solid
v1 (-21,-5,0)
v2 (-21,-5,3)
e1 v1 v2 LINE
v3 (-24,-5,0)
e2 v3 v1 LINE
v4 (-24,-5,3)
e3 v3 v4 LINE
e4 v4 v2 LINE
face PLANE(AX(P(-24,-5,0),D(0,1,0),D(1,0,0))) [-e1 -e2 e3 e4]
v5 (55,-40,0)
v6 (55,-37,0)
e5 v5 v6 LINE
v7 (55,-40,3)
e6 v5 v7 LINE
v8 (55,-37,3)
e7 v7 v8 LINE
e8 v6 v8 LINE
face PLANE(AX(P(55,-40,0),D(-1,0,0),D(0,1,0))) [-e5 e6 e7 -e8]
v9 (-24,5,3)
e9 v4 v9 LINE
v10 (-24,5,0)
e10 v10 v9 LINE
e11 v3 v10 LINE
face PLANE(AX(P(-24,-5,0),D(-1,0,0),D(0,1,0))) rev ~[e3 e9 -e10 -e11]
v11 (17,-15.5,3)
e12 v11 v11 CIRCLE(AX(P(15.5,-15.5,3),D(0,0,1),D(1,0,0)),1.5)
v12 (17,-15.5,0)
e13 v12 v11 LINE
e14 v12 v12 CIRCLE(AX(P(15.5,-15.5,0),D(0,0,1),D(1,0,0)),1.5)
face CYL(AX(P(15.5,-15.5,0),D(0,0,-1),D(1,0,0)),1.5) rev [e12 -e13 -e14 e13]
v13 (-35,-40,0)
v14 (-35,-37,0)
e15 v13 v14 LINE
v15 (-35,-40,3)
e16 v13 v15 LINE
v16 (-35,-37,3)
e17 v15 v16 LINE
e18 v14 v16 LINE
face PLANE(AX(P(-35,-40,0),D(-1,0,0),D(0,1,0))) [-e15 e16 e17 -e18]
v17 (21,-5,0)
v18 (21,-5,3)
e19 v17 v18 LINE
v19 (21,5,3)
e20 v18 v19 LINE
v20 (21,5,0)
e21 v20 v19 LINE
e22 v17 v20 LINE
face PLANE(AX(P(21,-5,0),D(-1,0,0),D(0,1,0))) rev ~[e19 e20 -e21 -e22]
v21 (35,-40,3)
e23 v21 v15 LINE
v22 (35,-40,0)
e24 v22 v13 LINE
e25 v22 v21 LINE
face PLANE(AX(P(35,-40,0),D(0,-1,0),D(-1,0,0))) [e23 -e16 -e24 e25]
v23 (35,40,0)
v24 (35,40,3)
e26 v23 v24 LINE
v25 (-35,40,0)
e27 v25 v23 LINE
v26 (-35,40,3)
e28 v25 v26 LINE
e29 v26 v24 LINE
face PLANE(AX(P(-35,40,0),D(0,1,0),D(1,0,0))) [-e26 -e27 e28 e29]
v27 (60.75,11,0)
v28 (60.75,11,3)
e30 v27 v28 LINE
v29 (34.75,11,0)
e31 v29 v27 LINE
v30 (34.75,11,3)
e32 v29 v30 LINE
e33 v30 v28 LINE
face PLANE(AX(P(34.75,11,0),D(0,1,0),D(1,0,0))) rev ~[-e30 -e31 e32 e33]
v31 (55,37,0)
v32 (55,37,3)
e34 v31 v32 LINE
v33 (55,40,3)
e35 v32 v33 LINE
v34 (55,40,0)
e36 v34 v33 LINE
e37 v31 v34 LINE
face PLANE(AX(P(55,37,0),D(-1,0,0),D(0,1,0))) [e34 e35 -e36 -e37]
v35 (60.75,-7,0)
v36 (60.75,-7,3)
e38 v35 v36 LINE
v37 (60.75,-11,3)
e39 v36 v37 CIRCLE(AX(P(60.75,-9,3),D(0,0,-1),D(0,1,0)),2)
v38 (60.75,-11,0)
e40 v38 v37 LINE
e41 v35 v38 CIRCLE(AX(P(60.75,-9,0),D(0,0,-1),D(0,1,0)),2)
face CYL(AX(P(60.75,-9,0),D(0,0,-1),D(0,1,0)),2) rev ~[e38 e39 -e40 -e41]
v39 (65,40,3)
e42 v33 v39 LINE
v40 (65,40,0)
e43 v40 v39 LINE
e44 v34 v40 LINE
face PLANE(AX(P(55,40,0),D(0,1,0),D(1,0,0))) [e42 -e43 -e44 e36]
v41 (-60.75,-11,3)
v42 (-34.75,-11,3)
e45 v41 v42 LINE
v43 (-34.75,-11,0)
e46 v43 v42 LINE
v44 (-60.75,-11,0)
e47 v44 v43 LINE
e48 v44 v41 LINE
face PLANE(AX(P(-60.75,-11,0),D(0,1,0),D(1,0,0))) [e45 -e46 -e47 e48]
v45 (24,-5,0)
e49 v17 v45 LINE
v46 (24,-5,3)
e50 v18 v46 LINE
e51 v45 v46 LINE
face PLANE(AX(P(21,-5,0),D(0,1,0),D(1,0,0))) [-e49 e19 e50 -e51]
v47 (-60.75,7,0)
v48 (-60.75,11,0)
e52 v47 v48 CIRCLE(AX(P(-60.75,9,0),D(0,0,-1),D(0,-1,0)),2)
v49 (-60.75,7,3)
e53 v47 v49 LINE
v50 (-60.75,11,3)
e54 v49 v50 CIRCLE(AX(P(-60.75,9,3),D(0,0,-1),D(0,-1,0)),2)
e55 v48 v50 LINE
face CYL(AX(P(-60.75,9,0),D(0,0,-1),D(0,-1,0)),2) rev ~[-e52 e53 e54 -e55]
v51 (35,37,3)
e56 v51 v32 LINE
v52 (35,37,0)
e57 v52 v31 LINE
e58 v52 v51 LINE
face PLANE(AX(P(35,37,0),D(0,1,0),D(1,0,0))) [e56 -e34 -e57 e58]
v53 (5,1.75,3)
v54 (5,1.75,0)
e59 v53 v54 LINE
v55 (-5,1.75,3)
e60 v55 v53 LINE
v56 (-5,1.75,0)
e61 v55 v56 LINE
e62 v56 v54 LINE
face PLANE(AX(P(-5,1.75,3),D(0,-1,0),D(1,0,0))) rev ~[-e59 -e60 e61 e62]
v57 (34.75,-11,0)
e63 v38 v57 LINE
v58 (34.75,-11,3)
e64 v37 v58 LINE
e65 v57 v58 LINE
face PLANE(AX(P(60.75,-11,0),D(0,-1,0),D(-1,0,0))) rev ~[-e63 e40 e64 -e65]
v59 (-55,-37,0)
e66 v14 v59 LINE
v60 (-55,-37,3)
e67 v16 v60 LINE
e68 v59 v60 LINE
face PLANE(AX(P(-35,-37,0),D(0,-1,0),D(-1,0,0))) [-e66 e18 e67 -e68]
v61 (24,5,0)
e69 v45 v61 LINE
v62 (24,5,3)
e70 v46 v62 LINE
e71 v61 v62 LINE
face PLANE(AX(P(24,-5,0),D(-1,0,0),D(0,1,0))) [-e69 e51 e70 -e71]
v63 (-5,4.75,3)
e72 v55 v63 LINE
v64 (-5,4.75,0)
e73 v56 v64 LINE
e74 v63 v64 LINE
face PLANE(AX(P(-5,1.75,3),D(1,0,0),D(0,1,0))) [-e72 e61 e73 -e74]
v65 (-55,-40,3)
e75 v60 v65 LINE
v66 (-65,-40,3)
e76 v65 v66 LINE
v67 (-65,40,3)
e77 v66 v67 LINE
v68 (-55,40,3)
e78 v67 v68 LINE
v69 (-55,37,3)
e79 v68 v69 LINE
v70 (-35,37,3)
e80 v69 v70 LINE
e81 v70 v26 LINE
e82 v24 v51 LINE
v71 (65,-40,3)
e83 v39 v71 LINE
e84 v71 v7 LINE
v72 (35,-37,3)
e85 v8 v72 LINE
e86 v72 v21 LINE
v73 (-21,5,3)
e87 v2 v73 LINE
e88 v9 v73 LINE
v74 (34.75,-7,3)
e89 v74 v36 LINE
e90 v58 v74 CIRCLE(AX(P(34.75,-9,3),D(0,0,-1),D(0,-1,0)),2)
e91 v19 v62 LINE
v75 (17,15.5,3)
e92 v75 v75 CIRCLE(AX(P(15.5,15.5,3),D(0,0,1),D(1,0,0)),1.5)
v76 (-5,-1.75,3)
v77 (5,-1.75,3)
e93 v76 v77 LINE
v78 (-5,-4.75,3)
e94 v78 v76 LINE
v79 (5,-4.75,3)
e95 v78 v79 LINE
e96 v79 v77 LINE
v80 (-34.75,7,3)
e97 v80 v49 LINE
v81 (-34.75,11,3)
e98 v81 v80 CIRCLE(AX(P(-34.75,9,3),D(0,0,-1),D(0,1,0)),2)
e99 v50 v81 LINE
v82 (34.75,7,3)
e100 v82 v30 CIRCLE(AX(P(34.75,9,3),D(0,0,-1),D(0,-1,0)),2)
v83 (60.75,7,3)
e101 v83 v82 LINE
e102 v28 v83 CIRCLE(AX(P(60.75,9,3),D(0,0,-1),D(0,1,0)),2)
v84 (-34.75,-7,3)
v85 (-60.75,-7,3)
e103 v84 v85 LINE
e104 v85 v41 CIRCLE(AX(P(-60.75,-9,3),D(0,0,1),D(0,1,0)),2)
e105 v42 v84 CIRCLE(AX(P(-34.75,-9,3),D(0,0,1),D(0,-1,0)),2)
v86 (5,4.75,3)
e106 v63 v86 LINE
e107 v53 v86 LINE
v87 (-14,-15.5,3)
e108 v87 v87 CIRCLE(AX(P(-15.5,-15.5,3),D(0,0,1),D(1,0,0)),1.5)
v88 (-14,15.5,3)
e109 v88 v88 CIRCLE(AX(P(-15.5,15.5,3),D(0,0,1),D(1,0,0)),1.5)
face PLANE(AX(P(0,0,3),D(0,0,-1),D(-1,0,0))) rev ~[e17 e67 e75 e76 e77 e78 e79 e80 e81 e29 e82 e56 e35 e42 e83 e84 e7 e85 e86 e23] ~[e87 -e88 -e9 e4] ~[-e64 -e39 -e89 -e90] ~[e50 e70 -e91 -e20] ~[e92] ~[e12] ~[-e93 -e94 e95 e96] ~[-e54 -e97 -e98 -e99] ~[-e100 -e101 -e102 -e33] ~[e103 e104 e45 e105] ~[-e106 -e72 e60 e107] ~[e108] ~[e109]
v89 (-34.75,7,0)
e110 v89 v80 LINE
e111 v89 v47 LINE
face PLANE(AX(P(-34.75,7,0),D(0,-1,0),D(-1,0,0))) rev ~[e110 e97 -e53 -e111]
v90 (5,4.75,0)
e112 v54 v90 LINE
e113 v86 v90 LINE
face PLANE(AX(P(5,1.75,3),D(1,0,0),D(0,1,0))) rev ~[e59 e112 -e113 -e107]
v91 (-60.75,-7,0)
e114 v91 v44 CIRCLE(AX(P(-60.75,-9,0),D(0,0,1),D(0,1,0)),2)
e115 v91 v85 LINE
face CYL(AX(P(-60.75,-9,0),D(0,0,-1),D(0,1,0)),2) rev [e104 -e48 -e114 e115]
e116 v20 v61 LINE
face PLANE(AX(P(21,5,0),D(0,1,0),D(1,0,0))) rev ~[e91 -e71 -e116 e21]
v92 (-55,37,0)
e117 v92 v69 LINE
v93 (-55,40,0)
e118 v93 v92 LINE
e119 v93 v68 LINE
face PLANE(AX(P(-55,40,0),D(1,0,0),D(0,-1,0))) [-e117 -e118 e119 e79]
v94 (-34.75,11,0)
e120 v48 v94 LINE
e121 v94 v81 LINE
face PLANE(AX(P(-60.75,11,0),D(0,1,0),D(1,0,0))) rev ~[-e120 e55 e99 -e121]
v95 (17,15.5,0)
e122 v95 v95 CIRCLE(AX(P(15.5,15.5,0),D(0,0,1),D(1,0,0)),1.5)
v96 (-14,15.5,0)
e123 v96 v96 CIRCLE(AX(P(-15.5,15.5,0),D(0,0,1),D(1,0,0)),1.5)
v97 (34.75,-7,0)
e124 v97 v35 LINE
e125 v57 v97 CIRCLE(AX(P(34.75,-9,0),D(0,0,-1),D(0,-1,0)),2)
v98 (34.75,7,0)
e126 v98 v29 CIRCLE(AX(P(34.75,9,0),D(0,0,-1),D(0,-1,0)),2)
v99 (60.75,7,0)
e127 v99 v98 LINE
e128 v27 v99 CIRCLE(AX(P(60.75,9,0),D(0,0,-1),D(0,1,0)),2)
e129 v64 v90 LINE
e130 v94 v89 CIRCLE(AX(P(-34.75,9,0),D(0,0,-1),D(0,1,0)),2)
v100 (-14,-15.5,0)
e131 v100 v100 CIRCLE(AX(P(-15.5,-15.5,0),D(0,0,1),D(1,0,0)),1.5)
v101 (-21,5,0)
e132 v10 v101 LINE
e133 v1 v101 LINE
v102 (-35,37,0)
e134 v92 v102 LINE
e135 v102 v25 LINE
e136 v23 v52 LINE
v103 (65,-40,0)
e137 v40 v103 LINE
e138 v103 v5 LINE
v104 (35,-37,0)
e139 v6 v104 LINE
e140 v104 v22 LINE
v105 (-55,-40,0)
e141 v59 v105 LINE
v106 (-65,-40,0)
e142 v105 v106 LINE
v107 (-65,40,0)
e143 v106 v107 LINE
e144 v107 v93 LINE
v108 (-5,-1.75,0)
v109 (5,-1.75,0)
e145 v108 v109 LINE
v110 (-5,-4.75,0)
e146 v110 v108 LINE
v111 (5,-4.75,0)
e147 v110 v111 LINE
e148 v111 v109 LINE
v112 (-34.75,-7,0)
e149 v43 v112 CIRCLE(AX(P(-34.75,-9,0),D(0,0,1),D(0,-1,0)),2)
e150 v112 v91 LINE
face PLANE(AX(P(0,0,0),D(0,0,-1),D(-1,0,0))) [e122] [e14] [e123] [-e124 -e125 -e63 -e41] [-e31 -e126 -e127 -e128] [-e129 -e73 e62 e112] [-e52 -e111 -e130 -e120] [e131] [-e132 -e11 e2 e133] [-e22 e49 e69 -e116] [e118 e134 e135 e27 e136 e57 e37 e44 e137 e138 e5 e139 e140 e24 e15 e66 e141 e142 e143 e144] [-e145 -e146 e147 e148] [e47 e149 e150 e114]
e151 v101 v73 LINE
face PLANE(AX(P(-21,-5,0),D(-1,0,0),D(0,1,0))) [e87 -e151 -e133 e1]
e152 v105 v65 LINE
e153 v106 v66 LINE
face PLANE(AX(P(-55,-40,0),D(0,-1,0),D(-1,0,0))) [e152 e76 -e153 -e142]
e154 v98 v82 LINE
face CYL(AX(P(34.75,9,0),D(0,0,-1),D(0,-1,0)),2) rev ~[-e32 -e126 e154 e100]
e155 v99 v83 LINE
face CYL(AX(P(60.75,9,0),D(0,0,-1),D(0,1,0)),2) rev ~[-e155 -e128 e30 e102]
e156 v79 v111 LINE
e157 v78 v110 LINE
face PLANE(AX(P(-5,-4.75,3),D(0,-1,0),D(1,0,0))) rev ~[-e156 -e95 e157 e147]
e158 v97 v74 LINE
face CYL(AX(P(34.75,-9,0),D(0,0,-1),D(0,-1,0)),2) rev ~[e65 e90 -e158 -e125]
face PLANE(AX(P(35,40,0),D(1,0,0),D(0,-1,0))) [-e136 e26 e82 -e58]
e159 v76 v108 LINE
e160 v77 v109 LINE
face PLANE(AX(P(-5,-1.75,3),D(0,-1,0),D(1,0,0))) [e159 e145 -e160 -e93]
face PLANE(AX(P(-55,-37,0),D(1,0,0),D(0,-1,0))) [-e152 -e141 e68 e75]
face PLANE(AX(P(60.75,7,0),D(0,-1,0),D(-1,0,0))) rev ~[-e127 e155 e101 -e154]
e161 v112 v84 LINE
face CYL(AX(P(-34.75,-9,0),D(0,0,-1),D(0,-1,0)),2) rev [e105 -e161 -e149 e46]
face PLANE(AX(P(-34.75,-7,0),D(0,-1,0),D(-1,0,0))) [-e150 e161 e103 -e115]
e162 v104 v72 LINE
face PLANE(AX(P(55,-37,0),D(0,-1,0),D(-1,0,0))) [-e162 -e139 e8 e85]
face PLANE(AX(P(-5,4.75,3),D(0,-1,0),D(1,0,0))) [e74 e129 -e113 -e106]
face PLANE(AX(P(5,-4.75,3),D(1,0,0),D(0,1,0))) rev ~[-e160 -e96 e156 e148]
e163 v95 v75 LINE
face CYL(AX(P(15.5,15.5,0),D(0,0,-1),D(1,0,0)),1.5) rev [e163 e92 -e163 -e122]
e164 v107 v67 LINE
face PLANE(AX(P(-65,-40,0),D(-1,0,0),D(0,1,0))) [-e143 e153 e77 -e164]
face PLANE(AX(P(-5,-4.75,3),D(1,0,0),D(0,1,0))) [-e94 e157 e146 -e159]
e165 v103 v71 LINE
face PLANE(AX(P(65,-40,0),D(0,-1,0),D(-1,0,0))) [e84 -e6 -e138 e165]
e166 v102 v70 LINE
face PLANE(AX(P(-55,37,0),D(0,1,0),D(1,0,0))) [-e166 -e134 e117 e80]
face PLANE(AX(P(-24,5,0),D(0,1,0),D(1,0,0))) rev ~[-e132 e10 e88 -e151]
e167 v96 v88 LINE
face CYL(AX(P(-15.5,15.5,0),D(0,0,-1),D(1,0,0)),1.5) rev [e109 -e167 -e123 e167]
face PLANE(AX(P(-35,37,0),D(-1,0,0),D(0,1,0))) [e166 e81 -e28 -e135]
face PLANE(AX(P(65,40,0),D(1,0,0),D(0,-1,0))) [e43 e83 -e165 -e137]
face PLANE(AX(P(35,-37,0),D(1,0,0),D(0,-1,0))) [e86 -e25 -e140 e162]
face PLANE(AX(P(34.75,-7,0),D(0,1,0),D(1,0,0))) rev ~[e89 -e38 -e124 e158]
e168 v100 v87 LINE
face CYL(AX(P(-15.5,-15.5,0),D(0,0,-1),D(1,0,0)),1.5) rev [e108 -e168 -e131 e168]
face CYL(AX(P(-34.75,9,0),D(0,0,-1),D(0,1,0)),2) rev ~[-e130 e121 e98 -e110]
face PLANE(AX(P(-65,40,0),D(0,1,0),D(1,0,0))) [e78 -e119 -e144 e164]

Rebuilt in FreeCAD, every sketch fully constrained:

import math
import FreeCAD as App
import Part
import Sketcher
from FreeCAD import Vector


def add_polygon(sketch, points):
    """Adds a closed chain of lines whose ends are joined by coincident constraints."""
    first, n = sketch.GeometryCount, len(points)
    for a, b in zip(points, points[1:] + points[:1]):
        sketch.addGeometry(Part.LineSegment(App.Vector(*a, 0), App.Vector(*b, 0)), False)
    for i in range(n):
        sketch.addConstraint(Sketcher.Constraint("Coincident", first + i, 2, first + (i + 1) % n, 1))

doc = App.newDocument("Part")
body = doc.addObject("PartDesign::Body", "Body")

# Sketch on XY plane
sketch1 = body.newObject("Sketcher::SketchObject", "Sketch")
sketch1.AttachmentSupport = (doc.getObject("XY_Plane"), [""])
sketch1.MapMode = "FlatFace"
add_polygon(sketch1, [(-55, 37), (-55, 40), (-65, 40), (-65, -40), (-55, -40), (-55, -37), (-35, -37), (-35, -40), (35, -40), (35, -37), (55, -37), (55, -40), (65, -40), (65, 40), (55, 40), (55, 37), (35, 37), (35, 40), (-35, 40), (-35, 37)])  # lines 0-19
sketch1.addGeometry(Part.LineSegment(Vector(34.8, -7, 0), Vector(60.8, -7, 0)), False)  # 20
sketch1.addGeometry(Part.ArcOfCircle(Part.Circle(Vector(60.8, -9, 0), Vector(0, 0, 1), 2), math.radians(-90), math.radians(90)), False)  # 21
sketch1.addGeometry(Part.LineSegment(Vector(60.8, -11, 0), Vector(34.8, -11, 0)), False)  # 22
sketch1.addGeometry(Part.ArcOfCircle(Part.Circle(Vector(34.8, -9, 0), Vector(0, 0, 1), 2), math.radians(90), math.radians(270)), False)  # 23
sketch1.addGeometry(Part.Circle(Vector(15.5, -15.5, 0), Vector(0, 0, 1), 1.5), False)  # 24
sketch1.addGeometry(Part.Circle(Vector(-15.5, -15.5, 0), Vector(0, 0, 1), 1.5), False)  # 25
sketch1.addGeometry(Part.ArcOfCircle(Part.Circle(Vector(-34.8, -9, 0), Vector(0, 0, 1), 2), math.radians(-90), math.radians(90)), False)  # 26
sketch1.addGeometry(Part.LineSegment(Vector(-34.8, -11, 0), Vector(-60.8, -11, 0)), False)  # 27
sketch1.addGeometry(Part.ArcOfCircle(Part.Circle(Vector(-60.8, -9, 0), Vector(0, 0, 1), 2), math.radians(90), math.radians(270)), False)  # 28
sketch1.addGeometry(Part.LineSegment(Vector(-60.8, -7, 0), Vector(-34.8, -7, 0)), False)  # 29
add_polygon(sketch1, [(21, -5), (21, 5), (24, 5), (24, -5)])  # lines 30-33
sketch1.addGeometry(Part.LineSegment(Vector(34.8, 11, 0), Vector(60.8, 11, 0)), False)  # 34
sketch1.addGeometry(Part.ArcOfCircle(Part.Circle(Vector(60.8, 9, 0), Vector(0, 0, 1), 2), math.radians(-90), math.radians(90)), False)  # 35
sketch1.addGeometry(Part.LineSegment(Vector(60.8, 7, 0), Vector(34.8, 7, 0)), False)  # 36
sketch1.addGeometry(Part.ArcOfCircle(Part.Circle(Vector(34.8, 9, 0), Vector(0, 0, 1), 2), math.radians(90), math.radians(270)), False)  # 37
sketch1.addGeometry(Part.Circle(Vector(15.5, 15.5, 0), Vector(0, 0, 1), 1.5), False)  # 38
add_polygon(sketch1, [(-24, -5), (-24, 5), (-21, 5), (-21, -5)])  # lines 39-42
sketch1.addGeometry(Part.Circle(Vector(-15.5, 15.5, 0), Vector(0, 0, 1), 1.5), False)  # 43
sketch1.addGeometry(Part.LineSegment(Vector(-60.8, 11, 0), Vector(-34.8, 11, 0)), False)  # 44
sketch1.addGeometry(Part.ArcOfCircle(Part.Circle(Vector(-34.8, 9, 0), Vector(0, 0, 1), 2), math.radians(-90), math.radians(90)), False)  # 45
sketch1.addGeometry(Part.LineSegment(Vector(-34.8, 7, 0), Vector(-60.8, 7, 0)), False)  # 46
sketch1.addGeometry(Part.ArcOfCircle(Part.Circle(Vector(-60.8, 9, 0), Vector(0, 0, 1), 2), math.radians(90), math.radians(270)), False)  # 47
sketch1.addConstraint([
    Sketcher.Constraint("Tangent", 20, 2, 21, 2),
    Sketcher.Constraint("Tangent", 21, 1, 22, 1),
    Sketcher.Constraint("Tangent", 22, 2, 23, 2),
    Sketcher.Constraint("Tangent", 23, 1, 20, 1),
    Sketcher.Constraint("Tangent", 26, 1, 27, 1),
    Sketcher.Constraint("Tangent", 27, 2, 28, 2),
    Sketcher.Constraint("Tangent", 28, 1, 29, 1),
    Sketcher.Constraint("Tangent", 29, 2, 26, 2),
    Sketcher.Constraint("Tangent", 34, 2, 35, 2),
    Sketcher.Constraint("Tangent", 35, 1, 36, 1),
    Sketcher.Constraint("Tangent", 36, 2, 37, 2),
    Sketcher.Constraint("Tangent", 37, 1, 34, 1),
    Sketcher.Constraint("Tangent", 44, 2, 45, 2),
    Sketcher.Constraint("Tangent", 45, 1, 46, 1),
    Sketcher.Constraint("Tangent", 46, 2, 47, 2),
    Sketcher.Constraint("Tangent", 47, 1, 44, 1),
    Sketcher.Constraint("Vertical", 0),
    Sketcher.Constraint("Horizontal", 1),
    Sketcher.Constraint("Vertical", 2),
    Sketcher.Constraint("Horizontal", 3),
    Sketcher.Constraint("Vertical", 4),
    Sketcher.Constraint("Horizontal", 5),
    Sketcher.Constraint("Vertical", 6),
    Sketcher.Constraint("Horizontal", 7),
    Sketcher.Constraint("Vertical", 8),
    Sketcher.Constraint("Horizontal", 9),
    Sketcher.Constraint("Vertical", 10),
    Sketcher.Constraint("Horizontal", 11),
    Sketcher.Constraint("Vertical", 12),
    Sketcher.Constraint("Horizontal", 13),
    Sketcher.Constraint("Vertical", 14),
    Sketcher.Constraint("Horizontal", 15),
    Sketcher.Constraint("Vertical", 16),
    Sketcher.Constraint("Horizontal", 17),
    Sketcher.Constraint("Vertical", 18),
    Sketcher.Constraint("Horizontal", 19),
    Sketcher.Constraint("Horizontal", 20),
    Sketcher.Constraint("Horizontal", 22),
    Sketcher.Constraint("Horizontal", 27),
    Sketcher.Constraint("Horizontal", 29),
    Sketcher.Constraint("Vertical", 30),
    Sketcher.Constraint("Horizontal", 31),
    Sketcher.Constraint("Vertical", 32),
    Sketcher.Constraint("Horizontal", 33),
    Sketcher.Constraint("Horizontal", 34),
    Sketcher.Constraint("Horizontal", 36),
    Sketcher.Constraint("Vertical", 39),
    Sketcher.Constraint("Horizontal", 40),
    Sketcher.Constraint("Vertical", 41),
    Sketcher.Constraint("Horizontal", 42),
    Sketcher.Constraint("Horizontal", 44),
    Sketcher.Constraint("Horizontal", 46),
    Sketcher.Constraint("Equal", 24, 25),
    Sketcher.Constraint("Equal", 23, 26),
    Sketcher.Constraint("Equal", 28, 35),
    Sketcher.Constraint("Equal", 25, 38),
    Sketcher.Constraint("Equal", 38, 43),
    Sketcher.Constraint("Equal", 37, 45),
    Sketcher.Constraint("Symmetric", 28, 3, 35, 3, -1, 1),
    Sketcher.Constraint("Symmetric", 25, 3, 38, 3, -1, 1),
    Sketcher.Constraint("Symmetric", 24, 3, 43, 3, -1, 1),
    Sketcher.Constraint("Symmetric", 23, 3, 45, 3, -1, 1),
    Sketcher.Constraint("Symmetric", 0, 2, 10, 2, -1, 1),
    Sketcher.Constraint("Symmetric", 2, 2, 12, 2, -1, 1),
    Sketcher.Constraint("Symmetric", 4, 2, 14, 2, -1, 1),
    Sketcher.Constraint("Symmetric", 6, 2, 16, 2, -1, 1),
    Sketcher.Constraint("Symmetric", 8, 2, 18, 2, -1, 1),
    Sketcher.Constraint("Symmetric", 32, 2, 39, 2, -1, 1),
    Sketcher.Constraint("Symmetric", 30, 2, 41, 2, -1, 1),
    Sketcher.Constraint("Symmetric", 24, 3, 25, 3, -2),
    Sketcher.Constraint("Symmetric", 23, 3, 26, 3, -2),
    Sketcher.Constraint("Symmetric", 5, 2, 8, 2, -2),
    Sketcher.Constraint("Symmetric", 3, 2, 10, 2, -2),
    Sketcher.Constraint("Horizontal", 3, 2, 6, 2),
    Sketcher.Constraint("Horizontal", 31, 2, 39, 2),
    Sketcher.Constraint("Vertical", 21, 3, 35, 3),
    Sketcher.Constraint("Vertical", 23, 3, 37, 3),
    Sketcher.Constraint("Vertical", 28, 3, 47, 3),
    Sketcher.Constraint("Equal", 42, 0),
    Sketcher.Constraint("Equal", 13, 30),
    Sketcher.Constraint("Diameter", 24, 3.0),
    Sketcher.Constraint("Radius", 21, 2.0),
    Sketcher.Constraint("DistanceX", 1, 2, 1, 1, 10.0),
    Sketcher.Constraint("DistanceX", 5, 1, 5, 2, 20.0),
    Sketcher.Constraint("DistanceX", 7, 1, 7, 2, 70.0),
    Sketcher.Constraint("DistanceX", 20, 1, 20, 2, 26.0),
    Sketcher.Constraint("DistanceX", 31, 1, 31, 2, 3.0),
    Sketcher.Constraint("DistanceY", 2, 2, 2, 1, 80.0),
    Sketcher.Constraint("DistanceY", 21, 3, -1, 1, 9.0),
    Sketcher.Constraint("DistanceX", -1, 1, 30, 2, 21.0),
    Sketcher.Constraint("DistanceX", 25, 3, 24, 3, 31.0),
    Sketcher.Constraint("DistanceY", 24, 3, 38, 3, 31.0),
    Sketcher.Constraint("DistanceX", 26, 3, 23, 3, 69.5),
])
pad1 = body.newObject("PartDesign::Pad", "Pad")
pad1.Profile = sketch1
pad1.Length = 3

# Sketch on XY plane
sketch2 = body.newObject("Sketcher::SketchObject", "Sketch001")
sketch2.AttachmentSupport = (doc.getObject("XY_Plane"), [""])
sketch2.MapMode = "FlatFace"
sketch2.AttachmentOffset = App.Placement(Vector(0, 0, 3), App.Rotation())
add_polygon(sketch2, [(-5, 4.8), (-5, 1.8), (5, 1.8), (5, 4.8)])  # lines 0-3
add_polygon(sketch2, [(-5, -1.8), (-5, -4.8), (5, -4.8), (5, -1.8)])  # lines 4-7
sketch2.addConstraint([
    Sketcher.Constraint("Vertical", 0),
    Sketcher.Constraint("Horizontal", 1),
    Sketcher.Constraint("Vertical", 2),
    Sketcher.Constraint("Horizontal", 3),
    Sketcher.Constraint("Vertical", 4),
    Sketcher.Constraint("Horizontal", 5),
    Sketcher.Constraint("Vertical", 6),
    Sketcher.Constraint("Horizontal", 7),
    Sketcher.Constraint("Symmetric", 2, 2, 4, 2, -1, 1),
    Sketcher.Constraint("Symmetric", 0, 2, 6, 2, -1, 1),
    Sketcher.Constraint("Vertical", 3, 2, 4, 2),
    Sketcher.Constraint("DistanceX", 1, 1, 1, 2, 10.0),
    Sketcher.Constraint("DistanceY", 0, 2, 0, 1, 3.0),
    Sketcher.Constraint("DistanceY", 4, 2, 0, 2, 6.5),
])
pocket1 = body.newObject("PartDesign::Pocket", "Pocket")
pocket1.Profile = sketch2
pocket1.Length = 3

doc.recompute()
